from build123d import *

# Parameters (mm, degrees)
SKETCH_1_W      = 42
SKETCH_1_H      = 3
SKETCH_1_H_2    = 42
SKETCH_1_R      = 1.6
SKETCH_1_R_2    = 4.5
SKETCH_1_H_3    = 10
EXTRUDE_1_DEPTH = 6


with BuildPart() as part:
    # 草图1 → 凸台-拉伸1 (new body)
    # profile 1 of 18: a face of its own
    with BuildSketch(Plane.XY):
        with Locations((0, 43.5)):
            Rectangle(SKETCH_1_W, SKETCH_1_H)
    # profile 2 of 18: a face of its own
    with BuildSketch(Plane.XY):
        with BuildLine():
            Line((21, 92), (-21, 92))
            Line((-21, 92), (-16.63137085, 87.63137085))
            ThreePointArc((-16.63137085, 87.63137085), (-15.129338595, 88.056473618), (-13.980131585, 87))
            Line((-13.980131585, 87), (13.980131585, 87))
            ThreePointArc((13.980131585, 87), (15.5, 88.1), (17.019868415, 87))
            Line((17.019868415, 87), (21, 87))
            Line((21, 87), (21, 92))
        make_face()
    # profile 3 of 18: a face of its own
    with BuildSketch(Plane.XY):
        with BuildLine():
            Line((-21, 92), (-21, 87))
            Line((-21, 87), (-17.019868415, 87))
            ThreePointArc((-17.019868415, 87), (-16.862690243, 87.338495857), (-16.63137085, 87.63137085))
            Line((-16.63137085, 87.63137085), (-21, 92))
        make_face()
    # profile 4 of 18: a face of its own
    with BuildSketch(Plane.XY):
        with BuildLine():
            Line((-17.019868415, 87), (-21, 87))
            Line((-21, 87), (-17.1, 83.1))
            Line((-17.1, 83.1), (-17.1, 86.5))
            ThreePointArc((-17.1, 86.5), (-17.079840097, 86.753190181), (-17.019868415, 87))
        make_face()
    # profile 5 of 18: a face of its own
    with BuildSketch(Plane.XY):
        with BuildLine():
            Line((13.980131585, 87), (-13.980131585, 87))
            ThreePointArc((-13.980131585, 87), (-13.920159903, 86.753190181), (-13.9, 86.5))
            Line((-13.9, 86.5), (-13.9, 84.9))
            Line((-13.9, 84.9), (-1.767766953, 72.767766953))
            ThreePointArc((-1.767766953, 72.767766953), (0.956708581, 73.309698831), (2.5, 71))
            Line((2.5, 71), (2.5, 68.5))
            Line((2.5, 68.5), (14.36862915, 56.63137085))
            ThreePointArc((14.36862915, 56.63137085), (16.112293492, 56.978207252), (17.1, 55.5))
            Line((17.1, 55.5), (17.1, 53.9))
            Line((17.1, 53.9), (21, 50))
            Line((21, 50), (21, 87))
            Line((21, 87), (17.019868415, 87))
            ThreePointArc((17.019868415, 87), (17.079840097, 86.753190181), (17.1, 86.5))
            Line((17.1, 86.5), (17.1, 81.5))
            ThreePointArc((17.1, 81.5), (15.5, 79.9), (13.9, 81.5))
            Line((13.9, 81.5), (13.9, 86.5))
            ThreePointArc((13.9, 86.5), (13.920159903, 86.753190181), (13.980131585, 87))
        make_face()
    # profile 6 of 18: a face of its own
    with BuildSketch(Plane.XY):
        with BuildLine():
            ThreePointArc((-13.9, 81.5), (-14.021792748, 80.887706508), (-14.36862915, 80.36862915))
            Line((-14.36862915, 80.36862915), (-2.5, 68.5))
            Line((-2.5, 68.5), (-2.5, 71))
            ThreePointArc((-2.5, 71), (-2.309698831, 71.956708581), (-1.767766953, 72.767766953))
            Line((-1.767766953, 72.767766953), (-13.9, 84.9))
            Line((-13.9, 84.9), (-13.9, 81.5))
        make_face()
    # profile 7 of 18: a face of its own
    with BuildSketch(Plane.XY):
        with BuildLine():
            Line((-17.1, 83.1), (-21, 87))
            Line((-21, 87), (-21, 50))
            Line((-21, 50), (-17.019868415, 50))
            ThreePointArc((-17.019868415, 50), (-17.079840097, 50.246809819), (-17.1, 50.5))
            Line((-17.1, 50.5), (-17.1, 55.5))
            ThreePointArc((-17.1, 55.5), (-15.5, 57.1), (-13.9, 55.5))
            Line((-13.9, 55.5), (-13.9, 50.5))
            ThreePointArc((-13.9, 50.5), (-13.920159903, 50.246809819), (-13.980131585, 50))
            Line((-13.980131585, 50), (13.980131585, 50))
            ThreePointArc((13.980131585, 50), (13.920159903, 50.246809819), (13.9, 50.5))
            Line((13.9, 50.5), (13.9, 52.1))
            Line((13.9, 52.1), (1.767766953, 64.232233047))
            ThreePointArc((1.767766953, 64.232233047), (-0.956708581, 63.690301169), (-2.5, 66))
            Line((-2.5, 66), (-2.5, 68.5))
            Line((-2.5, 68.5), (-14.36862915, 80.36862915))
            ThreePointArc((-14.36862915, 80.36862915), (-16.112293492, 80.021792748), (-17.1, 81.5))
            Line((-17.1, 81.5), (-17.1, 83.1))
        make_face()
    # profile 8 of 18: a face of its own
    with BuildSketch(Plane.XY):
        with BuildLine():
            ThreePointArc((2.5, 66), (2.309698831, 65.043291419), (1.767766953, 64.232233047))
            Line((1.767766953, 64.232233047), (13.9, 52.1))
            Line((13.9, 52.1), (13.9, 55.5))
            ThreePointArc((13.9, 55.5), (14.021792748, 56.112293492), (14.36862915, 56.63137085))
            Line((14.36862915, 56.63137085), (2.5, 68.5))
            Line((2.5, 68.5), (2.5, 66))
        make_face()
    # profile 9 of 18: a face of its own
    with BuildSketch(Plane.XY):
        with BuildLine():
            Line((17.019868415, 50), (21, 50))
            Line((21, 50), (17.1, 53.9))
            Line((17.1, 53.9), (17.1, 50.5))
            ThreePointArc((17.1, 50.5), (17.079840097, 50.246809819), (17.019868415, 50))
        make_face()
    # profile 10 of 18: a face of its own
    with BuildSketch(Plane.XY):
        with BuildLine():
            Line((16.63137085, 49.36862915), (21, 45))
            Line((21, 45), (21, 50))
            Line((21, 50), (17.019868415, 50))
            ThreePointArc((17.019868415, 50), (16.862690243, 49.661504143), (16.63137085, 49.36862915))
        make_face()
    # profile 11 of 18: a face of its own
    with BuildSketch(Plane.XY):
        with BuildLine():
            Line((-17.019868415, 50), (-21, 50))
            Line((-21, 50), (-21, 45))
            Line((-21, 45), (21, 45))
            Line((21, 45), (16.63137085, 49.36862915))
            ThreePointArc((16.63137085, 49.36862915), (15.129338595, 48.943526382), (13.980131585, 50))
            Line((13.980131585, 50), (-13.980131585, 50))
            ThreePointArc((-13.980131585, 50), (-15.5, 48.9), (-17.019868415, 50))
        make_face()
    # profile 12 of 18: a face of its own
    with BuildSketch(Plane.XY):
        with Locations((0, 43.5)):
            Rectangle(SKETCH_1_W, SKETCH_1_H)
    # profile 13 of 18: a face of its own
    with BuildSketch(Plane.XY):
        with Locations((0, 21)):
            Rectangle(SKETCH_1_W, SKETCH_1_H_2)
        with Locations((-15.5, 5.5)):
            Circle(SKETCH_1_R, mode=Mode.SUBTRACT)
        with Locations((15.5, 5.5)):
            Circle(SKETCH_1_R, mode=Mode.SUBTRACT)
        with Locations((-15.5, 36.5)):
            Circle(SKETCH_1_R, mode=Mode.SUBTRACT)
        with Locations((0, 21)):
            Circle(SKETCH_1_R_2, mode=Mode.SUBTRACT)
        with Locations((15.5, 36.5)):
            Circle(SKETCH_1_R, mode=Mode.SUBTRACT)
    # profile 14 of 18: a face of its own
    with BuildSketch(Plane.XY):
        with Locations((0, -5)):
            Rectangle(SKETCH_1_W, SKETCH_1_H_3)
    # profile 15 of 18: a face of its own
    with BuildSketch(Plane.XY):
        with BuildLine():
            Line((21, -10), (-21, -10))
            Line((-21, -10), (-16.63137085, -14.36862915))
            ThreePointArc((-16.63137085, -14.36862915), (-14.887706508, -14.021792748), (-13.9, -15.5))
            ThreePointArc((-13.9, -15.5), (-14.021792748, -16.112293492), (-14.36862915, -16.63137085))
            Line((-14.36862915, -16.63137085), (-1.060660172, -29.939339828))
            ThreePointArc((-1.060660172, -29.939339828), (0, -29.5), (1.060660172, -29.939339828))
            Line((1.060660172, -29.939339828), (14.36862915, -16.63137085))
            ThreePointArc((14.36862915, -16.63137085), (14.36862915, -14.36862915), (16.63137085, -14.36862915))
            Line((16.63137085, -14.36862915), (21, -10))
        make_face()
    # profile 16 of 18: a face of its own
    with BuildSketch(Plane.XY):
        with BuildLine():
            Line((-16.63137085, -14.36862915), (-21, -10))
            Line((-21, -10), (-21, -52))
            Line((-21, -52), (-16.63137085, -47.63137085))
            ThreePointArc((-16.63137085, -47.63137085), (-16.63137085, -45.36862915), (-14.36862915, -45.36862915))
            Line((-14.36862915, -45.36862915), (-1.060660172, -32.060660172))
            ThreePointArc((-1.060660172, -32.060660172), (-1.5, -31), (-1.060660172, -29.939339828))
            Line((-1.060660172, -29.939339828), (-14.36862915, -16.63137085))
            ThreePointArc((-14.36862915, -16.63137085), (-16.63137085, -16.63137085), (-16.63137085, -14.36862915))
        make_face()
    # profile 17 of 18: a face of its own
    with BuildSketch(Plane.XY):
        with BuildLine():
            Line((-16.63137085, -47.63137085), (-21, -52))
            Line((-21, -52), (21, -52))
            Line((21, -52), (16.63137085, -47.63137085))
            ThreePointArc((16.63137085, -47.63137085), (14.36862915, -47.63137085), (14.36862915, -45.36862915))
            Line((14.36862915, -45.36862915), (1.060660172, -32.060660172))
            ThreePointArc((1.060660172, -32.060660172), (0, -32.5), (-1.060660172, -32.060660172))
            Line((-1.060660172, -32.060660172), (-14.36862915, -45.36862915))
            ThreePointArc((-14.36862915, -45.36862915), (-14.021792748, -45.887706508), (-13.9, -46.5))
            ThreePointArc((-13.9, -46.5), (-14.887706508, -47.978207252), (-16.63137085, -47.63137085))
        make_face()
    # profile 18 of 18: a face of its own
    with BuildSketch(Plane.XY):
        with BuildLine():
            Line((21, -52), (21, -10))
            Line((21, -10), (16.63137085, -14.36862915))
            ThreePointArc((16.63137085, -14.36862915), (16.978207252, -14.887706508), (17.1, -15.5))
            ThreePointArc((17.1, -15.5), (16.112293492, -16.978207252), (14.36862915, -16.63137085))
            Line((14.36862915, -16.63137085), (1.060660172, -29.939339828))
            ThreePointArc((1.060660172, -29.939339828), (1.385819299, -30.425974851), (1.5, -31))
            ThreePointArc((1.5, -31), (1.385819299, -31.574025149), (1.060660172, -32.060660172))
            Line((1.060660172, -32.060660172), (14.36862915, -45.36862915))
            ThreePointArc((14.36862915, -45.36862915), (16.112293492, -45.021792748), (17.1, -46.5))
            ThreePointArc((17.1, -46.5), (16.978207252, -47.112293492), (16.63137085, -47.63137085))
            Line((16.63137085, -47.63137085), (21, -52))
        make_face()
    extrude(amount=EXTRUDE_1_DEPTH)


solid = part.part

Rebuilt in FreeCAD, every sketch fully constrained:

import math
import FreeCAD as App
import Part
import Sketcher
Q = App.Units.Quantity

doc = App.newDocument("Part")
params = doc.addObject("Spreadsheet::Sheet", "Params")
for row, (alias, value) in enumerate([
    ("sketch1_diameter", "9 mm"),
    ("sketch1_diameter2", "3.2 mm"),
    ("sketch1_radius", "2.5 mm"),
    ("sketch1_radius2", "1.5 mm"),
    ("sketch1_width", "42 mm"),
    ("pad1_length", "6 mm"),
], start=1):
    params.set(f"A{row}", alias)
    params.set(f"B{row}", "=" + value)
    params.setAlias(f"B{row}", alias)

body = doc.addObject("PartDesign::Body", "Body")

sketch1 = body.newObject("Sketcher::SketchObject", "Sketch")
sketch1.AttachmentSupport = (doc.getObject("XY_Plane"), [""])
sketch1.MapMode = "FlatFace"
sketch1.addGeometry([
    Part.LineSegment(App.Vector(-21, -52, 0), App.Vector(21, -52, 0)),
    Part.LineSegment(App.Vector(21, -52, 0), App.Vector(21, 92, 0)),
    Part.LineSegment(App.Vector(21, 92, 0), App.Vector(-21, 92, 0)),
    Part.LineSegment(App.Vector(-21, 92, 0), App.Vector(-21, -52, 0)),
    Part.Circle(App.Vector(15.5, 36.5, 0), App.Vector(0, 0, 1), 1.6),
    Part.Circle(App.Vector(-15.5, 5.5, 0), App.Vector(0, 0, 1), 1.6),
    Part.Circle(App.Vector(15.5, 5.5, 0), App.Vector(0, 0, 1), 1.6),
    Part.Circle(App.Vector(-15.5, 36.5, 0), App.Vector(0, 0, 1), 1.6),
    Part.Circle(App.Vector(0, 21, 0), App.Vector(0, 0, 1), 4.5),
    Part.ArcOfCircle(Part.Circle(App.Vector(-15.5, 50.5, 0), App.Vector(0, 0, 1), 1.6), math.radians(-162), math.radians(-18)),
    Part.ArcOfCircle(Part.Circle(App.Vector(-15.5, 50.5, 0), App.Vector(0, 0, 1), 1.6), math.radians(180), math.radians(198.21)),
    Part.LineSegment(App.Vector(-17.1, 50.5, 0), App.Vector(-17.1, 55.5, 0)),
    Part.ArcOfCircle(Part.Circle(App.Vector(-15.5, 55.5, 0), App.Vector(0, 0, 1), 1.6), math.radians(0), math.radians(180)),
    Part.LineSegment(App.Vector(-13.9, 55.5, 0), App.Vector(-13.9, 50.5, 0)),
    Part.ArcOfCircle(Part.Circle(App.Vector(-15.5, 50.5, 0), App.Vector(0, 0, 1), 1.6), math.radians(-18.21), math.radians(0)),
    Part.ArcOfCircle(Part.Circle(App.Vector(15.5, 50.5, 0), App.Vector(0, 0, 1), 1.6), math.radians(-162), math.radians(-45)),
    Part.ArcOfCircle(Part.Circle(App.Vector(15.5, 50.5, 0), App.Vector(0, 0, 1), 1.6), math.radians(180), math.radians(198.21)),
    Part.LineSegment(App.Vector(13.9, 50.5, 0), App.Vector(13.9, 55.5, 0)),
    Part.ArcOfCircle(Part.Circle(App.Vector(15.5, 55.5, 0), App.Vector(0, 0, 1), 1.6), math.radians(135), math.radians(180)),
    Part.ArcOfCircle(Part.Circle(App.Vector(15.5, 55.5, 0), App.Vector(0, 0, 1), 1.6), math.radians(0), math.radians(135)),
    Part.LineSegment(App.Vector(17.1, 55.5, 0), App.Vector(17.1, 50.5, 0)),
    Part.ArcOfCircle(Part.Circle(App.Vector(15.5, 50.5, 0), App.Vector(0, 0, 1), 1.6), math.radians(-18.21), math.radians(0)),
    Part.ArcOfCircle(Part.Circle(App.Vector(15.5, 50.5, 0), App.Vector(0, 0, 1), 1.6), math.radians(-45), math.radians(-18)),
    Part.LineSegment(App.Vector(-17.1, 81.5, 0), App.Vector(-17.1, 86.5, 0)),
    Part.ArcOfCircle(Part.Circle(App.Vector(-15.5, 86.5, 0), App.Vector(0, 0, 1), 1.6), math.radians(161.79), math.radians(180)),
    Part.ArcOfCircle(Part.Circle(App.Vector(-15.5, 86.5, 0), App.Vector(0, 0, 1), 1.6), math.radians(135), math.radians(162)),
    Part.ArcOfCircle(Part.Circle(App.Vector(-15.5, 86.5, 0), App.Vector(0, 0, 1), 1.6), math.radians(18), math.radians(135)),
    Part.ArcOfCircle(Part.Circle(App.Vector(-15.5, 86.5, 0), App.Vector(0, 0, 1), 1.6), math.radians(0), math.radians(18.21)),
    Part.LineSegment(App.Vector(-13.9, 86.5, 0), App.Vector(-13.9, 81.5, 0)),
    Part.ArcOfCircle(Part.Circle(App.Vector(-15.5, 81.5, 0), App.Vector(0, 0, 1), 1.6), math.radians(-45), math.radians(0)),
    Part.ArcOfCircle(Part.Circle(App.Vector(-15.5, 81.5, 0), App.Vector(0, 0, 1), 1.6), math.radians(180), math.radians(315)),
    Part.ArcOfCircle(Part.Circle(App.Vector(0, 66, 0), App.Vector(0, 0, 1), 2.5), math.radians(180), math.radians(315)),
    Part.LineSegment(App.Vector(-2.5, 66, 0), App.Vector(-2.5, 71, 0)),
    Part.ArcOfCircle(Part.Circle(App.Vector(0, 71, 0), App.Vector(0, 0, 1), 2.5), math.radians(135), math.radians(180)),
    Part.ArcOfCircle(Part.Circle(App.Vector(0, 71, 0), App.Vector(0, 0, 1), 2.5), math.radians(0), math.radians(135)),
    Part.LineSegment(App.Vector(2.5, 71, 0), App.Vector(2.5, 66, 0)),
    Part.ArcOfCircle(Part.Circle(App.Vector(0, 66, 0), App.Vector(0, 0, 1), 2.5), math.radians(-45), math.radians(0)),
    Part.ArcOfCircle(Part.Circle(App.Vector(-15.5, -15.5, 0), App.Vector(0, 0, 1), 1.6), math.radians(0), math.radians(135)),
    Part.ArcOfCircle(Part.Circle(App.Vector(-15.5, -15.5, 0), App.Vector(0, 0, 1), 1.6), math.radians(-45), math.radians(0)),
    Part.ArcOfCircle(Part.Circle(App.Vector(-15.5, -15.5, 0), App.Vector(0, 0, 1), 1.6), math.radians(135), math.radians(315)),
    Part.ArcOfCircle(Part.Circle(App.Vector(0, -31, 0), App.Vector(0, 0, 1), 1.5), math.radians(45), math.radians(135)),
    Part.ArcOfCircle(Part.Circle(App.Vector(0, -31, 0), App.Vector(0, 0, 1), 1.5), math.radians(0), math.radians(45)),
    Part.ArcOfCircle(Part.Circle(App.Vector(0, -31, 0), App.Vector(0, 0, 1), 1.5), math.radians(-45), math.radians(0)),
    Part.ArcOfCircle(Part.Circle(App.Vector(0, -31, 0), App.Vector(0, 0, 1), 1.5), math.radians(-135), math.radians(-45)),
    Part.ArcOfCircle(Part.Circle(App.Vector(0, -31, 0), App.Vector(0, 0, 1), 1.5), math.radians(135), math.radians(225)),
    Part.ArcOfCircle(Part.Circle(App.Vector(15.5, -15.5, 0), App.Vector(0, 0, 1), 1.6), math.radians(45), math.radians(225)),
    Part.ArcOfCircle(Part.Circle(App.Vector(15.5, -15.5, 0), App.Vector(0, 0, 1), 1.6), math.radians(0), math.radians(45)),
    Part.ArcOfCircle(Part.Circle(App.Vector(15.5, -15.5, 0), App.Vector(0, 0, 1), 1.6), math.radians(-135), math.radians(0)),
    Part.ArcOfCircle(Part.Circle(App.Vector(15.5, -46.5, 0), App.Vector(0, 0, 1), 1.6), math.radians(-45), math.radians(0)),
    Part.ArcOfCircle(Part.Circle(App.Vector(15.5, -46.5, 0), App.Vector(0, 0, 1), 1.6), math.radians(135), math.radians(315)),
    Part.ArcOfCircle(Part.Circle(App.Vector(15.5, -46.5, 0), App.Vector(0, 0, 1), 1.6), math.radians(0), math.radians(135)),
    Part.ArcOfCircle(Part.Circle(App.Vector(-15.5, -46.5, 0), App.Vector(0, 0, 1), 1.6), math.radians(45), math.radians(225)),
    Part.ArcOfCircle(Part.Circle(App.Vector(-15.5, -46.5, 0), App.Vector(0, 0, 1), 1.6), math.radians(0), math.radians(45)),
    Part.ArcOfCircle(Part.Circle(App.Vector(-15.5, -46.5, 0), App.Vector(0, 0, 1), 1.6), math.radians(-135), math.radians(0)),
    Part.LineSegment(App.Vector(13.9, 81.5, 0), App.Vector(13.9, 86.5, 0)),
    Part.ArcOfCircle(Part.Circle(App.Vector(15.5, 86.5, 0), App.Vector(0, 0, 1), 1.6), math.radians(161.79), math.radians(180)),
    Part.ArcOfCircle(Part.Circle(App.Vector(15.5, 86.5, 0), App.Vector(0, 0, 1), 1.6), math.radians(18), math.radians(162)),
    Part.ArcOfCircle(Part.Circle(App.Vector(15.5, 86.5, 0), App.Vector(0, 0, 1), 1.6), math.radians(0), math.radians(18.21)),
    Part.LineSegment(App.Vector(17.1, 86.5, 0), App.Vector(17.1, 81.5, 0)),
    Part.ArcOfCircle(Part.Circle(App.Vector(15.5, 81.5, 0), App.Vector(0, 0, 1), 1.6), math.radians(180), math.radians(360)),
], False)
sketch1.addConstraint([
    Sketcher.Constraint("Coincident", 0, 2, 1, 1),
    Sketcher.Constraint("Coincident", 1, 2, 2, 1),
    Sketcher.Constraint("Coincident", 2, 2, 3, 1),
    Sketcher.Constraint("Coincident", 3, 2, 0, 1),
    Sketcher.Constraint("Tangent", 9, 1, 10, 2),
    Sketcher.Constraint("Tangent", 10, 1, 11, 1),
    Sketcher.Constraint("Tangent", 11, 2, 12, 2),
    Sketcher.Constraint("Tangent", 12, 1, 13, 1),
    Sketcher.Constraint("Tangent", 13, 2, 14, 2),
    Sketcher.Constraint("Tangent", 14, 1, 9, 2),
    Sketcher.Constraint("Tangent", 15, 1, 16, 2),
    Sketcher.Constraint("Tangent", 16, 1, 17, 1),
    Sketcher.Constraint("Tangent", 17, 2, 18, 2),
    Sketcher.Constraint("Tangent", 18, 1, 19, 2),
    Sketcher.Constraint("Tangent", 19, 1, 20, 1),
    Sketcher.Constraint("Tangent", 20, 2, 21, 2),
    Sketcher.Constraint("Tangent", 21, 1, 22, 2),
    Sketcher.Constraint("Tangent", 22, 1, 15, 2),
    Sketcher.Constraint("Tangent", 23, 2, 24, 2),
    Sketcher.Constraint("Tangent", 24, 1, 25, 2),
    Sketcher.Constraint("Tangent", 25, 1, 26, 2),
    Sketcher.Constraint("Tangent", 26, 1, 27, 2),
    Sketcher.Constraint("Tangent", 27, 1, 28, 1),
    Sketcher.Constraint("Tangent", 28, 2, 29, 2),
    Sketcher.Constraint("Tangent", 29, 1, 30, 2),
    Sketcher.Constraint("Tangent", 30, 1, 23, 1),
    Sketcher.Constraint("Tangent", 31, 1, 32, 1),
    Sketcher.Constraint("Tangent", 32, 2, 33, 2),
    Sketcher.Constraint("Tangent", 33, 1, 34, 2),
    Sketcher.Constraint("Tangent", 34, 1, 35, 1),
    Sketcher.Constraint("Tangent", 35, 2, 36, 2),
    Sketcher.Constraint("Tangent", 36, 1, 31, 2),
    Sketcher.Constraint("Tangent", 37, 1, 38, 2),
    Sketcher.Constraint("Tangent", 38, 1, 39, 2),
    Sketcher.Constraint("Tangent", 39, 1, 37, 2),
    Sketcher.Constraint("Tangent", 40, 1, 41, 2),
    Sketcher.Constraint("Tangent", 41, 1, 42, 2),
    Sketcher.Constraint("Tangent", 42, 1, 43, 2),
    Sketcher.Constraint("Tangent", 43, 1, 44, 2),
    Sketcher.Constraint("Tangent", 44, 1, 40, 2),
    Sketcher.Constraint("Tangent", 45, 1, 46, 2),
    Sketcher.Constraint("Tangent", 46, 1, 47, 2),
    Sketcher.Constraint("Tangent", 47, 1, 45, 2),
    Sketcher.Constraint("Tangent", 48, 1, 49, 2),
    Sketcher.Constraint("Tangent", 49, 1, 50, 2),
    Sketcher.Constraint("Tangent", 50, 1, 48, 2),
    Sketcher.Constraint("Tangent", 51, 1, 52, 2),
    Sketcher.Constraint("Tangent", 52, 1, 53, 2),
    Sketcher.Constraint("Tangent", 53, 1, 51, 2),
    Sketcher.Constraint("Tangent", 54, 2, 55, 2),
    Sketcher.Constraint("Tangent", 55, 1, 56, 2),
    Sketcher.Constraint("Tangent", 56, 1, 57, 2),
    Sketcher.Constraint("Tangent", 57, 1, 58, 1),
    Sketcher.Constraint("Tangent", 58, 2, 59, 2),
    Sketcher.Constraint("Tangent", 59, 1, 54, 1),
    Sketcher.Constraint("Horizontal", 0),
    Sketcher.Constraint("Vertical", 1),
    Sketcher.Constraint("Horizontal", 2),
    Sketcher.Constraint("Vertical", 3),
    Sketcher.Constraint("Vertical", 11),
    Sketcher.Constraint("Vertical", 13),
    Sketcher.Constraint("Vertical", 17),
    Sketcher.Constraint("Vertical", 20),
    Sketcher.Constraint("Vertical", 23),
    Sketcher.Constraint("Vertical", 28),
    Sketcher.Constraint("Vertical", 32),
    Sketcher.Constraint("Vertical", 35),
    Sketcher.Constraint("Vertical", 54),
    Sketcher.Constraint("Vertical", 58),
    Sketcher.Constraint("Coincident", 21, 3, 15, 3),
    Sketcher.Constraint("Coincident", 26, 3, 24, 3),
    Sketcher.Constraint("Coincident", 42, 3, 40, 3),
    Sketcher.Constraint("Coincident", 57, 3, 55, 3),
    Sketcher.Constraint("Equal", 4, 5),
    Sketcher.Constraint("Equal", 5, 6),
    Sketcher.Constraint("Equal", 6, 7),
    Sketcher.Constraint("Equal", 7, 9),
    Sketcher.Constraint("Equal", 9, 10),
    Sketcher.Constraint("Equal", 10, 12),
    Sketcher.Constraint("Equal", 14, 15),
    Sketcher.Constraint("Equal", 15, 16),
    Sketcher.Constraint("Equal", 16, 18),
    Sketcher.Constraint("Equal", 22, 24),
    Sketcher.Constraint("Equal", 26, 27),
    Sketcher.Constraint("Equal", 27, 29),
    Sketcher.Constraint("Equal", 31, 33),
    Sketcher.Constraint("Equal", 33, 34),
    Sketcher.Constraint("Equal", 30, 37),
    Sketcher.Constraint("Equal", 39, 45),
    Sketcher.Constraint("Equal", 47, 48),
    Sketcher.Constraint("Equal", 50, 51),
    Sketcher.Constraint("Equal", 53, 55),
    Sketcher.Constraint("Symmetric", 5, 3, 6, 3, -2),
    Sketcher.Constraint("Symmetric", 4, 3, 7, 3, -2),
    Sketcher.Constraint("Symmetric", 9, 3, 15, 3, -2),
    Sketcher.Constraint("Symmetric", 37, 3, 45, 3, -2),
    Sketcher.Constraint("Symmetric", 48, 3, 51, 3, -2),
    Sketcher.Constraint("Symmetric", 24, 3, 55, 3, -2),
    Sketcher.Constraint("Symmetric", 42, 1, 43, 1, -2),
    Sketcher.Constraint("PointOnObject", 8, 3, -2),
    Sketcher.Constraint("PointOnObject", 31, 3, -2),
    Sketcher.Constraint("Horizontal", 12, 3, 18, 3),
    Sketcher.Constraint("Horizontal", 30, 3, 59, 3),
    Sketcher.Constraint("Horizontal", 9, 1, 14, 1),
    Sketcher.Constraint("Horizontal", 14, 1, 15, 1),
    Sketcher.Constraint("Horizontal", 15, 1, 21, 1),
    Sketcher.Constraint("Horizontal", 24, 1, 26, 1),
    Sketcher.Constraint("Horizontal", 47, 3, 37, 1),
    Sketcher.Constraint("Horizontal", 44, 3, 41, 1),
    Sketcher.Constraint("Horizontal", 40, 1, 44, 1),
    Sketcher.Constraint("Horizontal", 39, 1, 45, 1),
    Sketcher.Constraint("Horizontal", 37, 1, 46, 1),
    Sketcher.Constraint("Horizontal", 38, 1, 47, 1),
    Sketcher.Constraint("Horizontal", 53, 3, 50, 1),
    Sketcher.Constraint("Horizontal", 49, 1, 51, 1),
    Sketcher.Constraint("Horizontal", 50, 1, 52, 1),
    Sketcher.Constraint("Horizontal", 48, 1, 53, 1),
    Sketcher.Constraint("Horizontal", 26, 1, 55, 1),
    Sketcher.Constraint("Horizontal", 55, 1, 56, 1),
    Sketcher.Constraint("Vertical", 4, 3, 6, 3),
    Sketcher.Constraint("Vertical", 7, 3, 9, 3),
    Sketcher.Constraint("Vertical", 14, 3, 24, 3),
    Sketcher.Constraint("Vertical", 30, 3, 37, 3),
    Sketcher.Constraint("Vertical", 47, 3, 48, 3),
    Sketcher.Constraint("Vertical", 9, 1, 24, 1),
    Sketcher.Constraint("Vertical", 29, 1, 38, 1),
    Sketcher.Constraint("Vertical", 25, 1, 39, 1),
    Sketcher.Constraint("Vertical", 40, 1, 42, 1),
    Sketcher.Constraint("Vertical", 22, 1, 45, 1),
    Sketcher.Constraint("Vertical", 18, 1, 47, 1),
    Sketcher.Constraint("Vertical", 45, 1, 48, 1),
    Sketcher.Constraint("Vertical", 47, 1, 49, 1),
    Sketcher.Constraint("Equal", 20, 23),
    Sketcher.Constraint("Equal", 28, 32),
    Sketcher.Constraint("Diameter", 8, Q("9 mm")),
    Sketcher.Constraint("Diameter", 4, Q("3.2 mm")),
    Sketcher.Constraint("Radius", 31, Q("2.5 mm")),
    Sketcher.Constraint("Radius", 40, Q("1.5 mm")),
    Sketcher.Constraint("DistanceX", 0, 1, 0, 2, Q("42 mm")),
    Sketcher.Constraint("DistanceY", 1, 1, 1, 2, Q("144 mm")),
    Sketcher.Constraint("DistanceY", 11, 1, 11, 2, Q("5 mm")),
    Sketcher.Constraint("DistanceY", -1, 1, 8, 3, Q("21 mm")),
    Sketcher.Constraint("DistanceY", -1, 1, 31, 3, Q("66 mm")),
    Sketcher.Constraint("DistanceY", 40, 3, -1, 1, Q("31 mm")),
    Sketcher.Constraint("DistanceX", -1, 1, 0, 2, Q("21 mm")),
    Sketcher.Constraint("DistanceY", 0, 2, -1, 1, Q("52 mm")),
    Sketcher.Constraint("DistanceY", -1, 1, 9, 1, Q("50 mm")),
    Sketcher.Constraint("DistanceY", -1, 1, 24, 1, Q("87 mm")),
    Sketcher.Constraint("DistanceX", -1, 1, 4, 3, Q("15.5 mm")),
    Sketcher.Constraint("DistanceY", -1, 1, 4, 3, Q("36.5 mm")),
    Sketcher.Constraint("DistanceY", -1, 1, 5, 3, Q("5.5 mm")),
    Sketcher.Constraint("DistanceY", -1, 1, 9, 3, Q("50.5 mm")),
    Sketcher.Constraint("DistanceY", 37, 3, -1, 1, Q("15.5 mm")),
    Sketcher.Constraint("DistanceY", 48, 3, -1, 1, Q("46.5 mm")),
    Sketcher.Constraint("DistanceX", -1, 1, 18, 1, Q("14.368629 mm")),
    Sketcher.Constraint("DistanceX", -1, 1, 22, 1, Q("16.631371 mm")),
    Sketcher.Constraint("DistanceX", -1, 1, 40, 1, Q("1.06066 mm")),
    Sketcher.Constraint("DistanceX", 33, 1, -1, 1, Q("1.767767 mm")),
    Sketcher.Constraint("DistanceX", -1, 1, 36, 1, Q("1.767767 mm")),
])
sketch1.setExpression("Constraints[134]", "Params.sketch1_diameter")
sketch1.setExpression("Constraints[135]", "Params.sketch1_diameter2")
sketch1.setExpression("Constraints[136]", "Params.sketch1_radius")
sketch1.setExpression("Constraints[137]", "Params.sketch1_radius2")
sketch1.setExpression("Constraints[138]", "Params.sketch1_width")
pad1 = body.newObject("PartDesign::Pad", "Pad")
pad1.Profile = sketch1
pad1.setExpression("Length", "Params.pad1_length")

doc.recompute()
